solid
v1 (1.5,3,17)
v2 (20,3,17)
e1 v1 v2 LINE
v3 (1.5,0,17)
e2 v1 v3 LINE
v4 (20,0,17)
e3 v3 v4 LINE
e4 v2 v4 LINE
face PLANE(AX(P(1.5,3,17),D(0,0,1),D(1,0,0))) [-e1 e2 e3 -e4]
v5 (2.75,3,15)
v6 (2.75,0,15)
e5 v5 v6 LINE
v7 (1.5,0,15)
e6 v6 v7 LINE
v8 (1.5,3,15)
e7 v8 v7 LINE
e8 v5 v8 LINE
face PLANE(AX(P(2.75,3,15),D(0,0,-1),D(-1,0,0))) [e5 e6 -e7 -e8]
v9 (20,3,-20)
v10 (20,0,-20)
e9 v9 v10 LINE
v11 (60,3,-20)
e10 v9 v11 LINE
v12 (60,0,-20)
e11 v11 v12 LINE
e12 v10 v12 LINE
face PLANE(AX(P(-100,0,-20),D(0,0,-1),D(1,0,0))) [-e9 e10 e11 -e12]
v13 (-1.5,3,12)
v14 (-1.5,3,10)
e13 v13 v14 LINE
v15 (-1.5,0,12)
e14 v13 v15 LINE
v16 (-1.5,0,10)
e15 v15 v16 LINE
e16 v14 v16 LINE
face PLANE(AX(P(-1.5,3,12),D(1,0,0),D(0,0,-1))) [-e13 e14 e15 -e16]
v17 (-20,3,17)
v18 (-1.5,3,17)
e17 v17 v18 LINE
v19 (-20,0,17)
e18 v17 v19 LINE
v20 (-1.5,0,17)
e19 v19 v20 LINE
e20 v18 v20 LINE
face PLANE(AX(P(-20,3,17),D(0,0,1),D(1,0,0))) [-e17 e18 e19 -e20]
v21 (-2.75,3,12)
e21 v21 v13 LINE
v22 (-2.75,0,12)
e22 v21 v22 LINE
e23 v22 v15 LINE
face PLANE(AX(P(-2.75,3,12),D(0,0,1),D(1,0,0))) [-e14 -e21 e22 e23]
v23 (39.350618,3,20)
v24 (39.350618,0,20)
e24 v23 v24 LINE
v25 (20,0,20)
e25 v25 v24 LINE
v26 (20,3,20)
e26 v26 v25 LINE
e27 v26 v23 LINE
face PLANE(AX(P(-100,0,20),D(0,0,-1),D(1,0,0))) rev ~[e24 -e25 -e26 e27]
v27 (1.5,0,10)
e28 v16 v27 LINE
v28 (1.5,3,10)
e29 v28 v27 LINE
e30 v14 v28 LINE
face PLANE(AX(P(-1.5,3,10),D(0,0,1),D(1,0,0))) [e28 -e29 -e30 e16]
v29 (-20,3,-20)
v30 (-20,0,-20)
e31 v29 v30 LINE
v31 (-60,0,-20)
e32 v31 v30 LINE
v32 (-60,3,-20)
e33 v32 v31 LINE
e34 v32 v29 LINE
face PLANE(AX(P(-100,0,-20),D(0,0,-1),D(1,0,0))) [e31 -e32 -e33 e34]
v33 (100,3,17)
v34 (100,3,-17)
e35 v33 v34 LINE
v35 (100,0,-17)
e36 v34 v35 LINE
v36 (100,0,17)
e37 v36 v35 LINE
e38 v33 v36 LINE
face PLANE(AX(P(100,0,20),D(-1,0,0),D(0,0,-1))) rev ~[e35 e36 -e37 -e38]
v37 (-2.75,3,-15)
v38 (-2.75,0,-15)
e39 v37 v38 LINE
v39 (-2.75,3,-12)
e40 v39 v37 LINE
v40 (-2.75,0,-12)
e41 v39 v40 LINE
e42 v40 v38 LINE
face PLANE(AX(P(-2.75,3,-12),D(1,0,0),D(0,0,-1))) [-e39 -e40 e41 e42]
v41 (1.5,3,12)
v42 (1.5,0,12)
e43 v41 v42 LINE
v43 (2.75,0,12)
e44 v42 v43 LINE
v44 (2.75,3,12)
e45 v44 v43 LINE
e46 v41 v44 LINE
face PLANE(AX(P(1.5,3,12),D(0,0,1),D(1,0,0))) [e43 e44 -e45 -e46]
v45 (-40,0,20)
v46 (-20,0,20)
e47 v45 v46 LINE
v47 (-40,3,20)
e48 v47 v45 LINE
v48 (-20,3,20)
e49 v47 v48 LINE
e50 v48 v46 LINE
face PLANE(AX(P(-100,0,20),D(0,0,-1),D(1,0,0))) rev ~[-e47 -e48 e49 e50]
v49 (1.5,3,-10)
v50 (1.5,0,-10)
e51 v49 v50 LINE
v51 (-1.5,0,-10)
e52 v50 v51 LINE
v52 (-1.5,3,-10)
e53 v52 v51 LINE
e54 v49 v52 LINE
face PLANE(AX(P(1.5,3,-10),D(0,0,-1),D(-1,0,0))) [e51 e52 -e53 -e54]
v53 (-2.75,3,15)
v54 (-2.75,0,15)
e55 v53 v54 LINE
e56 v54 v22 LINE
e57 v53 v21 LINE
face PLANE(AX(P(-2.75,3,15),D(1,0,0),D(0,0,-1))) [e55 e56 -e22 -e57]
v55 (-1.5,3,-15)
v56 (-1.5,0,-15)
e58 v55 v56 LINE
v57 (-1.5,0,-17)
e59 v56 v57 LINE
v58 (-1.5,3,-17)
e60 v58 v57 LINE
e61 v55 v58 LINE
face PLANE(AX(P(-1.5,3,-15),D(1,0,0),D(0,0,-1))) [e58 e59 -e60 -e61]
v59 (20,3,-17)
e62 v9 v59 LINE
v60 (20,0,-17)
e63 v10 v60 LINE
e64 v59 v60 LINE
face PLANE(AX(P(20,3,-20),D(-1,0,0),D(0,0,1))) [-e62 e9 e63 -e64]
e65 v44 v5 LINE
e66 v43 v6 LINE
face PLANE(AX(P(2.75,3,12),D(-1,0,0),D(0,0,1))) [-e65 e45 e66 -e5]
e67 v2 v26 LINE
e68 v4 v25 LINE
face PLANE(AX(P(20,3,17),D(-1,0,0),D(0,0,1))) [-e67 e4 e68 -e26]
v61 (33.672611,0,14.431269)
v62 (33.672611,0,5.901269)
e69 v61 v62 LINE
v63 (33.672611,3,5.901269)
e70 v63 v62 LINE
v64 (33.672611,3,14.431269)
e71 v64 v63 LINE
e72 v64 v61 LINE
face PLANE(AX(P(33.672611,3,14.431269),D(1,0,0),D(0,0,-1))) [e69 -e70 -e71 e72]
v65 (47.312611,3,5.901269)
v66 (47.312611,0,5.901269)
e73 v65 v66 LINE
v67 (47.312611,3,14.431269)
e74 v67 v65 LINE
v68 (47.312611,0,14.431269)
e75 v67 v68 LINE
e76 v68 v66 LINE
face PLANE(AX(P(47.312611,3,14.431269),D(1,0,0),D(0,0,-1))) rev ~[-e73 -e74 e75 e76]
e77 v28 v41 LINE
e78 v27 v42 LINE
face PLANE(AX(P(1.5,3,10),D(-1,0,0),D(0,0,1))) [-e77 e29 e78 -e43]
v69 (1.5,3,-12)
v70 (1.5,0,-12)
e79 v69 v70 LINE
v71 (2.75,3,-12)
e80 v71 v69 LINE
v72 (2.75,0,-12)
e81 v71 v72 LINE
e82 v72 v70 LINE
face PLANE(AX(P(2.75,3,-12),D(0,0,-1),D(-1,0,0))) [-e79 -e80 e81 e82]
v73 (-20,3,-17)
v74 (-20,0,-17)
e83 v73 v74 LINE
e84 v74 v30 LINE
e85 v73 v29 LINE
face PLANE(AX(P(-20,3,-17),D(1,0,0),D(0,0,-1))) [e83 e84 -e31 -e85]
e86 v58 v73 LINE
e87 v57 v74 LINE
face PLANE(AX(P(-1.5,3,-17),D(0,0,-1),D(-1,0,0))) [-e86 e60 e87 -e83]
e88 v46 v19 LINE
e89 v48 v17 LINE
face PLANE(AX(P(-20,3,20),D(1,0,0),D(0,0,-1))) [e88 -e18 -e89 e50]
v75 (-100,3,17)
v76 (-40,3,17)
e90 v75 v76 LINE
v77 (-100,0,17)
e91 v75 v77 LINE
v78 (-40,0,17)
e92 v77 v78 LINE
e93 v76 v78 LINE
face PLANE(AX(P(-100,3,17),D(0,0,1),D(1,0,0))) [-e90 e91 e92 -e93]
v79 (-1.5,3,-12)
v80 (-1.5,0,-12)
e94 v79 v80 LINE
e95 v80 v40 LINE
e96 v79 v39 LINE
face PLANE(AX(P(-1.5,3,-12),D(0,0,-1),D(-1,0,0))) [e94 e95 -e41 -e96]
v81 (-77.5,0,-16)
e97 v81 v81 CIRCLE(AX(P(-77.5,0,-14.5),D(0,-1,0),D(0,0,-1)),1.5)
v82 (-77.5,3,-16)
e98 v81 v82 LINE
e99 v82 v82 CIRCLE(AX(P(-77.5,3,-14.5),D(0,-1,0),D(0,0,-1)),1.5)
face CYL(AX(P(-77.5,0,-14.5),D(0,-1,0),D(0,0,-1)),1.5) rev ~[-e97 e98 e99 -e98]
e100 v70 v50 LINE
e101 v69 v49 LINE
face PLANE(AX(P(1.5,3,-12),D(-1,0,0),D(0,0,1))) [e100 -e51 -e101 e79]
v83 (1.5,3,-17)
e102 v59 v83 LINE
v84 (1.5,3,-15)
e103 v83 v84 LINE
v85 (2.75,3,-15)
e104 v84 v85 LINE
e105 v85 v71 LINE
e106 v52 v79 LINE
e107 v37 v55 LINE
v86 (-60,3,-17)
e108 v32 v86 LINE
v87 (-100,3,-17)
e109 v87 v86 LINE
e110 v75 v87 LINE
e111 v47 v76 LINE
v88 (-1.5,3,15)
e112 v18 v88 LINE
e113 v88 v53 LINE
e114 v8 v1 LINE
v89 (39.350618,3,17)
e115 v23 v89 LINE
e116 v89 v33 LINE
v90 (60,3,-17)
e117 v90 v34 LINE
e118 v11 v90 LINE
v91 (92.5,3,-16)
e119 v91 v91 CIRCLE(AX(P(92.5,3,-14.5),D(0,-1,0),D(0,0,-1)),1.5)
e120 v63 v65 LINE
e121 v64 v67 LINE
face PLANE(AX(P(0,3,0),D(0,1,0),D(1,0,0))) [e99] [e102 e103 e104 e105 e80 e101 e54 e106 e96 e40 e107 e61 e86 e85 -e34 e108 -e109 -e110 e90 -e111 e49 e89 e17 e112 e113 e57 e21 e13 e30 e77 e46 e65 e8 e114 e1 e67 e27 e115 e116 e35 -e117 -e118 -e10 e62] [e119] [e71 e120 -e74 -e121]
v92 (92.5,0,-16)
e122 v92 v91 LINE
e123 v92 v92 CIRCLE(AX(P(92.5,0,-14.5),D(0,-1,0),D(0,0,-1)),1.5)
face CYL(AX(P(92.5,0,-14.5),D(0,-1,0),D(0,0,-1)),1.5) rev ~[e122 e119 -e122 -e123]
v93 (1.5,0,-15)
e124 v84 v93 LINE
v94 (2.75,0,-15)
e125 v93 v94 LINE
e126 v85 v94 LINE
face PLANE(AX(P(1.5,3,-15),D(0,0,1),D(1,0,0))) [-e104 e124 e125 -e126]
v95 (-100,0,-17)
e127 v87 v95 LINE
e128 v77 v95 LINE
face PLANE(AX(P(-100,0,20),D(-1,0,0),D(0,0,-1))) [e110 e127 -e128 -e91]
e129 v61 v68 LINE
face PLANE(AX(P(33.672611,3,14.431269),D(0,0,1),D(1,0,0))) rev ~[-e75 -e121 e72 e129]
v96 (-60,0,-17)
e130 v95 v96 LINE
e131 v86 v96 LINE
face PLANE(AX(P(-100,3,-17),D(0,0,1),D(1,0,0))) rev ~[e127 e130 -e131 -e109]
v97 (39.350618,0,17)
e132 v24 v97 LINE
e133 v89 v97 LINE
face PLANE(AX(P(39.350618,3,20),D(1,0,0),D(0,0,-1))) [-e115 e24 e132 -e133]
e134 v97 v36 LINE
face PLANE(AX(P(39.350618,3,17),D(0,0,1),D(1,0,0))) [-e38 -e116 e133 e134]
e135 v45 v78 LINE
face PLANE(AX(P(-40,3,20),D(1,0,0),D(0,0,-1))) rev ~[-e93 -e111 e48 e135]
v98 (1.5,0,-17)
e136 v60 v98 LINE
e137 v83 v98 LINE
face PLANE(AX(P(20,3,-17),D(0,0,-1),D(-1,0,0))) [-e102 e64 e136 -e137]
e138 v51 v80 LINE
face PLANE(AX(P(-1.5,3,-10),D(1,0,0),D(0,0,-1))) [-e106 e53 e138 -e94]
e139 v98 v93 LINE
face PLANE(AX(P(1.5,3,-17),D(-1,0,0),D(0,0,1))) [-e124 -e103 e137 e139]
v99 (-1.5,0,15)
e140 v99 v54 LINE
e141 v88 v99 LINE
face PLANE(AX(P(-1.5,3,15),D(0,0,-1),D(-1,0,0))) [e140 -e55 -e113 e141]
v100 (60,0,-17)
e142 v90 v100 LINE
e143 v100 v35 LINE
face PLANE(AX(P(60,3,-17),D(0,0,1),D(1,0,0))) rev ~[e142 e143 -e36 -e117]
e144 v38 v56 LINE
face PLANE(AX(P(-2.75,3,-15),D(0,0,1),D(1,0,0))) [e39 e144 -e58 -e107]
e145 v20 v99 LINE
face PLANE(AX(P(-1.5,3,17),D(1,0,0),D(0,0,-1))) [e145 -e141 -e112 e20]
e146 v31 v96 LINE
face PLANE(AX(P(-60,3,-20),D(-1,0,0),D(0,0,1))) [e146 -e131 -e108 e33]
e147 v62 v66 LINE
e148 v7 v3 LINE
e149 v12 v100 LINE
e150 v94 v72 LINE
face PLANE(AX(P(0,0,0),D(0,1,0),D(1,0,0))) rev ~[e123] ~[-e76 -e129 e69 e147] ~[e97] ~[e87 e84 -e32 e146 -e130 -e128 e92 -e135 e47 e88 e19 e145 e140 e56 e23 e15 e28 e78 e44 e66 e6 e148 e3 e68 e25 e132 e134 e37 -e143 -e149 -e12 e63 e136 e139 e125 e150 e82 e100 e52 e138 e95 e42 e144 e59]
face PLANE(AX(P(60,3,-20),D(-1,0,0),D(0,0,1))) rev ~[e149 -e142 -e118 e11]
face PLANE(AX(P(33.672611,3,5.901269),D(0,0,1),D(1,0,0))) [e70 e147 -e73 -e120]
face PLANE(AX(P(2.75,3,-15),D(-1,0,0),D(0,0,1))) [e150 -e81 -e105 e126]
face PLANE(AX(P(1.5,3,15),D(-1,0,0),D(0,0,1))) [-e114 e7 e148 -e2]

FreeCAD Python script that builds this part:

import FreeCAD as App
import Part
import Sketcher
from FreeCAD import Vector
Q = App.Units.Quantity

doc = App.newDocument("Part")
body = doc.addObject("PartDesign::Body", "Body")

sketch1 = body.newObject("Sketcher::SketchObject", "Sketch")
sketch1.AttachmentSupport = (doc.getObject("XZ_Plane"), [""])
sketch1.MapMode = "FlatFace"
sketch1.addGeometry([
    Part.LineSegment(Vector(-100, -20, 0), Vector(-100, 20, 0)),
    Part.LineSegment(Vector(-100, 20, 0), Vector(100, 20, 0)),
    Part.LineSegment(Vector(100, 20, 0), Vector(100, -20, 0)),
    Part.LineSegment(Vector(100, -20, 0), Vector(-100, -20, 0)),
], False)
sketch1.addConstraint([
    Sketcher.Constraint("Coincident", 0, 2, 1, 1),
    Sketcher.Constraint("Coincident", 1, 2, 2, 1),
    Sketcher.Constraint("Coincident", 2, 2, 3, 1),
    Sketcher.Constraint("Coincident", 3, 2, 0, 1),
    Sketcher.Constraint("Vertical", 0),
    Sketcher.Constraint("Horizontal", 1),
    Sketcher.Constraint("Vertical", 2),
    Sketcher.Constraint("Horizontal", 3),
    Sketcher.Constraint("Symmetric", 0, 2, 2, 2, -1, 1),
    Sketcher.Constraint("DistanceX", 1, 1, 1, 2, Q("200 mm")),
    Sketcher.Constraint("DistanceY", 0, 1, 0, 2, Q("40 mm")),
])
pad1 = body.newObject("PartDesign::Pad", "Pad")
pad1.Profile = sketch1
pad1.Length = 3
pad1.Reversed = True

sketch2 = body.newObject("Sketcher::SketchObject", "Sketch001")
sketch2.AttachmentSupport = (doc.getObject("XZ_Plane"), [""])
sketch2.MapMode = "FlatFace"
sketch2.AttachmentOffset = App.Placement(Vector(0, 0, -3), App.Rotation())
sketch2.addGeometry([
    Part.LineSegment(Vector(-20, 17, 0), Vector(-20, 20, 0)),
    Part.LineSegment(Vector(-20, 20, 0), Vector(20, 20, 0)),
    Part.LineSegment(Vector(20, 20, 0), Vector(20, 17, 0)),
    Part.LineSegment(Vector(20, 17, 0), Vector(1.5, 17, 0)),
    Part.LineSegment(Vector(1.5, 17, 0), Vector(1.5, 15, 0)),
    Part.LineSegment(Vector(1.5, 15, 0), Vector(2.75, 15, 0)),
    Part.LineSegment(Vector(2.75, 15, 0), Vector(2.75, 12, 0)),
    Part.LineSegment(Vector(2.75, 12, 0), Vector(1.5, 12, 0)),
    Part.LineSegment(Vector(1.5, 12, 0), Vector(1.5, 10, 0)),
    Part.LineSegment(Vector(1.5, 10, 0), Vector(-1.5, 10, 0)),
    Part.LineSegment(Vector(-1.5, 10, 0), Vector(-1.5, 12, 0)),
    Part.LineSegment(Vector(-1.5, 12, 0), Vector(-2.75, 12, 0)),
    Part.LineSegment(Vector(-2.75, 12, 0), Vector(-2.75, 15, 0)),
    Part.LineSegment(Vector(-2.75, 15, 0), Vector(-1.5, 15, 0)),
    Part.LineSegment(Vector(-1.5, 15, 0), Vector(-1.5, 17, 0)),
    Part.LineSegment(Vector(-1.5, 17, 0), Vector(-20, 17, 0)),
    Part.LineSegment(Vector(-100, 17, 0), Vector(-100, 20, 0)),
    Part.LineSegment(Vector(-100, 20, 0), Vector(-40, 20, 0)),
    Part.LineSegment(Vector(-40, 20, 0), Vector(-40, 17, 0)),
    Part.LineSegment(Vector(-40, 17, 0), Vector(-100, 17, 0)),
    Part.LineSegment(Vector(39.350618, 17, 0), Vector(39.350618, 20, 0)),
    Part.LineSegment(Vector(39.350618, 20, 0), Vector(100, 20, 0)),
    Part.LineSegment(Vector(100, 20, 0), Vector(100, 17, 0)),
    Part.LineSegment(Vector(100, 17, 0), Vector(39.350618, 17, 0)),
    Part.LineSegment(Vector(100, -17, 0), Vector(100, -20, 0)),
    Part.LineSegment(Vector(100, -20, 0), Vector(60, -20, 0)),
    Part.LineSegment(Vector(60, -20, 0), Vector(60, -17, 0)),
    Part.LineSegment(Vector(60, -17, 0), Vector(100, -17, 0)),
    Part.LineSegment(Vector(20, -17, 0), Vector(20, -20, 0)),
    Part.LineSegment(Vector(20, -20, 0), Vector(-20, -20, 0)),
    Part.LineSegment(Vector(-20, -20, 0), Vector(-20, -17, 0)),
    Part.LineSegment(Vector(-20, -17, 0), Vector(-1.5, -17, 0)),
    Part.LineSegment(Vector(-1.5, -17, 0), Vector(-1.5, -15, 0)),
    Part.LineSegment(Vector(-1.5, -15, 0), Vector(-2.75, -15, 0)),
    Part.LineSegment(Vector(-2.75, -15, 0), Vector(-2.75, -12, 0)),
    Part.LineSegment(Vector(-2.75, -12, 0), Vector(-1.5, -12, 0)),
    Part.LineSegment(Vector(-1.5, -12, 0), Vector(-1.5, -10, 0)),
    Part.LineSegment(Vector(-1.5, -10, 0), Vector(1.5, -10, 0)),
    Part.LineSegment(Vector(1.5, -10, 0), Vector(1.5, -12, 0)),
    Part.LineSegment(Vector(1.5, -12, 0), Vector(2.75, -12, 0)),
    Part.LineSegment(Vector(2.75, -12, 0), Vector(2.75, -15, 0)),
    Part.LineSegment(Vector(2.75, -15, 0), Vector(1.5, -15, 0)),
    Part.LineSegment(Vector(1.5, -15, 0), Vector(1.5, -17, 0)),
    Part.LineSegment(Vector(1.5, -17, 0), Vector(20, -17, 0)),
    Part.LineSegment(Vector(-60, -17, 0), Vector(-60, -20, 0)),
    Part.LineSegment(Vector(-60, -20, 0), Vector(-100, -20, 0)),
    Part.LineSegment(Vector(-100, -20, 0), Vector(-100, -17, 0)),
    Part.LineSegment(Vector(-100, -17, 0), Vector(-60, -17, 0)),
], False)
sketch2.addConstraint([
    Sketcher.Constraint("Coincident", 0, 2, 1, 1),
    Sketcher.Constraint("Coincident", 1, 2, 2, 1),
    Sketcher.Constraint("Coincident", 2, 2, 3, 1),
    Sketcher.Constraint("Coincident", 3, 2, 4, 1),
    Sketcher.Constraint("Coincident", 4, 2, 5, 1),
    Sketcher.Constraint("Coincident", 5, 2, 6, 1),
    Sketcher.Constraint("Coincident", 6, 2, 7, 1),
    Sketcher.Constraint("Coincident", 7, 2, 8, 1),
    Sketcher.Constraint("Coincident", 8, 2, 9, 1),
    Sketcher.Constraint("Coincident", 9, 2, 10, 1),
    Sketcher.Constraint("Coincident", 10, 2, 11, 1),
    Sketcher.Constraint("Coincident", 11, 2, 12, 1),
    Sketcher.Constraint("Coincident", 12, 2, 13, 1),
    Sketcher.Constraint("Coincident", 13, 2, 14, 1),
    Sketcher.Constraint("Coincident", 14, 2, 15, 1),
    Sketcher.Constraint("Coincident", 15, 2, 0, 1),
    Sketcher.Constraint("Coincident", 16, 2, 17, 1),
    Sketcher.Constraint("Coincident", 17, 2, 18, 1),
    Sketcher.Constraint("Coincident", 18, 2, 19, 1),
    Sketcher.Constraint("Coincident", 19, 2, 16, 1),
    Sketcher.Constraint("Coincident", 20, 2, 21, 1),
    Sketcher.Constraint("Coincident", 21, 2, 22, 1),
    Sketcher.Constraint("Coincident", 22, 2, 23, 1),
    Sketcher.Constraint("Coincident", 23, 2, 20, 1),
    Sketcher.Constraint("Coincident", 24, 2, 25, 1),
    Sketcher.Constraint("Coincident", 25, 2, 26, 1),
    Sketcher.Constraint("Coincident", 26, 2, 27, 1),
    Sketcher.Constraint("Coincident", 27, 2, 24, 1),
    Sketcher.Constraint("Coincident", 28, 2, 29, 1),
    Sketcher.Constraint("Coincident", 29, 2, 30, 1),
    Sketcher.Constraint("Coincident", 30, 2, 31, 1),
    Sketcher.Constraint("Coincident", 31, 2, 32, 1),
    Sketcher.Constraint("Coincident", 32, 2, 33, 1),
    Sketcher.Constraint("Coincident", 33, 2, 34, 1),
    Sketcher.Constraint("Coincident", 34, 2, 35, 1),
    Sketcher.Constraint("Coincident", 35, 2, 36, 1),
    Sketcher.Constraint("Coincident", 36, 2, 37, 1),
    Sketcher.Constraint("Coincident", 37, 2, 38, 1),
    Sketcher.Constraint("Coincident", 38, 2, 39, 1),
    Sketcher.Constraint("Coincident", 39, 2, 40, 1),
    Sketcher.Constraint("Coincident", 40, 2, 41, 1),
    Sketcher.Constraint("Coincident", 41, 2, 42, 1),
    Sketcher.Constraint("Coincident", 42, 2, 43, 1),
    Sketcher.Constraint("Coincident", 43, 2, 28, 1),
    Sketcher.Constraint("Coincident", 44, 2, 45, 1),
    Sketcher.Constraint("Coincident", 45, 2, 46, 1),
    Sketcher.Constraint("Coincident", 46, 2, 47, 1),
    Sketcher.Constraint("Coincident", 47, 2, 44, 1),
    Sketcher.Constraint("Vertical", 0),
    Sketcher.Constraint("Horizontal", 1),
    Sketcher.Constraint("Vertical", 2),
    Sketcher.Constraint("Horizontal", 3),
    Sketcher.Constraint("Vertical", 4),
    Sketcher.Constraint("Horizontal", 5),
    Sketcher.Constraint("Vertical", 6),
    Sketcher.Constraint("Horizontal", 7),
    Sketcher.Constraint("Vertical", 8),
    Sketcher.Constraint("Horizontal", 9),
    Sketcher.Constraint("Vertical", 10),
    Sketcher.Constraint("Horizontal", 11),
    Sketcher.Constraint("Vertical", 12),
    Sketcher.Constraint("Horizontal", 13),
    Sketcher.Constraint("Vertical", 14),
    Sketcher.Constraint("Horizontal", 15),
    Sketcher.Constraint("Vertical", 16),
    Sketcher.Constraint("Horizontal", 17),
    Sketcher.Constraint("Vertical", 18),
    Sketcher.Constraint("Horizontal", 19),
    Sketcher.Constraint("Vertical", 20),
    Sketcher.Constraint("Horizontal", 21),
    Sketcher.Constraint("Vertical", 22),
    Sketcher.Constraint("Horizontal", 23),
    Sketcher.Constraint("Vertical", 24),
    Sketcher.Constraint("Horizontal", 25),
    Sketcher.Constraint("Vertical", 26),
    Sketcher.Constraint("Horizontal", 27),
    Sketcher.Constraint("Vertical", 28),
    Sketcher.Constraint("Horizontal", 29),
    Sketcher.Constraint("Vertical", 30),
    Sketcher.Constraint("Horizontal", 31),
    Sketcher.Constraint("Vertical", 32),
    Sketcher.Constraint("Horizontal", 33),
    Sketcher.Constraint("Vertical", 34),
    Sketcher.Constraint("Horizontal", 35),
    Sketcher.Constraint("Vertical", 36),
    Sketcher.Constraint("Horizontal", 37),
    Sketcher.Constraint("Vertical", 38),
    Sketcher.Constraint("Horizontal", 39),
    Sketcher.Constraint("Vertical", 40),
    Sketcher.Constraint("Horizontal", 41),
    Sketcher.Constraint("Vertical", 42),
    Sketcher.Constraint("Horizontal", 43),
    Sketcher.Constraint("Vertical", 44),
    Sketcher.Constraint("Horizontal", 45),
    Sketcher.Constraint("Vertical", 46),
    Sketcher.Constraint("Horizontal", 47),
    Sketcher.Constraint("Symmetric", 16, 2, 24, 2, -1, 1),
    Sketcher.Constraint("Symmetric", 0, 2, 28, 2, -1, 1),
    Sketcher.Constraint("Symmetric", 2, 2, 30, 2, -1, 1),
    Sketcher.Constraint("Symmetric", 4, 2, 32, 2, -1, 1),
    Sketcher.Constraint("Symmetric", 6, 2, 34, 2, -1, 1),
    Sketcher.Constraint("Symmetric", 8, 2, 36, 2, -1, 1),
    Sketcher.Constraint("Symmetric", 10, 2, 38, 2, -1, 1),
    Sketcher.Constraint("Symmetric", 12, 2, 40, 2, -1, 1),
    Sketcher.Constraint("Symmetric", 14, 2, 42, 2, -1, 1),
    Sketcher.Constraint("Symmetric", 21, 2, 45, 2, -1, 1),
    Sketcher.Constraint("Symmetric", 7, 2, 10, 2, -2),
    Sketcher.Constraint("Symmetric", 5, 2, 12, 2, -2),
    Sketcher.Constraint("Symmetric", 3, 2, 14, 2, -2),
    Sketcher.Constraint("Symmetric", 16, 2, 21, 2, -2),
    Sketcher.Constraint("Symmetric", 26, 2, 47, 2, -2),
    Sketcher.Constraint("Horizontal", 1, 2, 16, 2),
    Sketcher.Constraint("Horizontal", 15, 2, 18, 2),
    Sketcher.Constraint("Horizontal", 19, 2, 22, 2),
    Sketcher.Constraint("Horizontal", 27, 2, 30, 2),
    Sketcher.Constraint("Vertical", 4, 2, 7, 2),
    Sketcher.Constraint("Vertical", 2, 2, 28, 2),
    Sketcher.Constraint("Equal", 1, 25),
    Sketcher.Constraint("Equal", 37, 0),
    Sketcher.Constraint("Equal", 2, 6),
    Sketcher.Constraint("Equal", 4, 8),
    Sketcher.Constraint("DistanceX", 1, 1, 1, 2, Q("40 mm")),
    Sketcher.Constraint("DistanceX", 9, 2, 9, 1, Q("3 mm")),
    Sketcher.Constraint("DistanceX", 17, 1, 17, 2, Q("60 mm")),
    Sketcher.Constraint("DistanceY", 4, 2, 4, 1, Q("2 mm")),
    Sketcher.Constraint("DistanceY", -1, 1, 0, 2, Q("20 mm")),
    Sketcher.Constraint("DistanceX", 16, 2, -1, 1, Q("100 mm")),
    Sketcher.Constraint("DistanceX", 5, 1, 5, 2, Q("1.25 mm")),
    Sketcher.Constraint("DistanceX", 21, 1, 21, 2, Q("60.649382 mm")),
])
pocket1 = body.newObject("PartDesign::Pocket", "Pocket")
pocket1.Profile = sketch2
pocket1.Length = 3
pocket1.Reversed = True

sketch3 = body.newObject("Sketcher::SketchObject", "Sketch002")
sketch3.AttachmentSupport = (doc.getObject("XZ_Plane"), [""])
sketch3.MapMode = "FlatFace"
sketch3.AttachmentOffset = App.Placement(Vector(0, 0, -3), App.Rotation())
sketch3.addGeometry([
    Part.LineSegment(Vector(33.672611, 5.901269, 0), Vector(33.672611, 14.431269, 0)),
    Part.LineSegment(Vector(33.672611, 14.431269, 0), Vector(47.312611, 14.431269, 0)),
    Part.LineSegment(Vector(47.312611, 14.431269, 0), Vector(47.312611, 5.901269, 0)),
    Part.LineSegment(Vector(47.312611, 5.901269, 0), Vector(33.672611, 5.901269, 0)),
], False)
sketch3.addConstraint([
    Sketcher.Constraint("Coincident", 0, 2, 1, 1),
    Sketcher.Constraint("Coincident", 1, 2, 2, 1),
    Sketcher.Constraint("Coincident", 2, 2, 3, 1),
    Sketcher.Constraint("Coincident", 3, 2, 0, 1),
    Sketcher.Constraint("Vertical", 0),
    Sketcher.Constraint("Horizontal", 1),
    Sketcher.Constraint("Vertical", 2),
    Sketcher.Constraint("Horizontal", 3),
    Sketcher.Constraint("DistanceX", 1, 1, 1, 2, Q("13.64 mm")),
    Sketcher.Constraint("DistanceY", 0, 1, 0, 2, Q("8.53 mm")),
    Sketcher.Constraint("DistanceX", -1, 1, 0, 2, Q("33.672611 mm")),
    Sketcher.Constraint("DistanceY", -1, 1, 0, 2, Q("14.431269 mm")),
])
pocket2 = body.newObject("PartDesign::Pocket", "Pocket001")
pocket2.Profile = sketch3
pocket2.Length = 3
pocket2.Reversed = True

sketch4 = body.newObject("Sketcher::SketchObject", "Sketch003")
sketch4.AttachmentSupport = (doc.getObject("XZ_Plane"), [""])
sketch4.MapMode = "FlatFace"
sketch4.addGeometry([
    Part.Circle(Vector(92.5, -14.5, 0), Vector(0, 0, 1), 1.5),
    Part.Circle(Vector(-77.5, -14.5, 0), Vector(0, 0, 1), 1.5),
], False)
sketch4.addConstraint([
    Sketcher.Constraint("Equal", 0, 1),
    Sketcher.Constraint("Horizontal", 0, 3, 1, 3),
    Sketcher.Constraint("Diameter", 0, Q("3 mm")),
    Sketcher.Constraint("DistanceX", 1, 3, 0, 3, Q("170 mm")),
    Sketcher.Constraint("DistanceX", -1, 1, 0, 3, Q("92.5 mm")),
    Sketcher.Constraint("DistanceY", 0, 3, -1, 1, Q("14.5 mm")),
])
pocket3 = body.newObject("PartDesign::Pocket", "Pocket002")
pocket3.Profile = sketch4
pocket3.Length = 3

doc.recompute()
